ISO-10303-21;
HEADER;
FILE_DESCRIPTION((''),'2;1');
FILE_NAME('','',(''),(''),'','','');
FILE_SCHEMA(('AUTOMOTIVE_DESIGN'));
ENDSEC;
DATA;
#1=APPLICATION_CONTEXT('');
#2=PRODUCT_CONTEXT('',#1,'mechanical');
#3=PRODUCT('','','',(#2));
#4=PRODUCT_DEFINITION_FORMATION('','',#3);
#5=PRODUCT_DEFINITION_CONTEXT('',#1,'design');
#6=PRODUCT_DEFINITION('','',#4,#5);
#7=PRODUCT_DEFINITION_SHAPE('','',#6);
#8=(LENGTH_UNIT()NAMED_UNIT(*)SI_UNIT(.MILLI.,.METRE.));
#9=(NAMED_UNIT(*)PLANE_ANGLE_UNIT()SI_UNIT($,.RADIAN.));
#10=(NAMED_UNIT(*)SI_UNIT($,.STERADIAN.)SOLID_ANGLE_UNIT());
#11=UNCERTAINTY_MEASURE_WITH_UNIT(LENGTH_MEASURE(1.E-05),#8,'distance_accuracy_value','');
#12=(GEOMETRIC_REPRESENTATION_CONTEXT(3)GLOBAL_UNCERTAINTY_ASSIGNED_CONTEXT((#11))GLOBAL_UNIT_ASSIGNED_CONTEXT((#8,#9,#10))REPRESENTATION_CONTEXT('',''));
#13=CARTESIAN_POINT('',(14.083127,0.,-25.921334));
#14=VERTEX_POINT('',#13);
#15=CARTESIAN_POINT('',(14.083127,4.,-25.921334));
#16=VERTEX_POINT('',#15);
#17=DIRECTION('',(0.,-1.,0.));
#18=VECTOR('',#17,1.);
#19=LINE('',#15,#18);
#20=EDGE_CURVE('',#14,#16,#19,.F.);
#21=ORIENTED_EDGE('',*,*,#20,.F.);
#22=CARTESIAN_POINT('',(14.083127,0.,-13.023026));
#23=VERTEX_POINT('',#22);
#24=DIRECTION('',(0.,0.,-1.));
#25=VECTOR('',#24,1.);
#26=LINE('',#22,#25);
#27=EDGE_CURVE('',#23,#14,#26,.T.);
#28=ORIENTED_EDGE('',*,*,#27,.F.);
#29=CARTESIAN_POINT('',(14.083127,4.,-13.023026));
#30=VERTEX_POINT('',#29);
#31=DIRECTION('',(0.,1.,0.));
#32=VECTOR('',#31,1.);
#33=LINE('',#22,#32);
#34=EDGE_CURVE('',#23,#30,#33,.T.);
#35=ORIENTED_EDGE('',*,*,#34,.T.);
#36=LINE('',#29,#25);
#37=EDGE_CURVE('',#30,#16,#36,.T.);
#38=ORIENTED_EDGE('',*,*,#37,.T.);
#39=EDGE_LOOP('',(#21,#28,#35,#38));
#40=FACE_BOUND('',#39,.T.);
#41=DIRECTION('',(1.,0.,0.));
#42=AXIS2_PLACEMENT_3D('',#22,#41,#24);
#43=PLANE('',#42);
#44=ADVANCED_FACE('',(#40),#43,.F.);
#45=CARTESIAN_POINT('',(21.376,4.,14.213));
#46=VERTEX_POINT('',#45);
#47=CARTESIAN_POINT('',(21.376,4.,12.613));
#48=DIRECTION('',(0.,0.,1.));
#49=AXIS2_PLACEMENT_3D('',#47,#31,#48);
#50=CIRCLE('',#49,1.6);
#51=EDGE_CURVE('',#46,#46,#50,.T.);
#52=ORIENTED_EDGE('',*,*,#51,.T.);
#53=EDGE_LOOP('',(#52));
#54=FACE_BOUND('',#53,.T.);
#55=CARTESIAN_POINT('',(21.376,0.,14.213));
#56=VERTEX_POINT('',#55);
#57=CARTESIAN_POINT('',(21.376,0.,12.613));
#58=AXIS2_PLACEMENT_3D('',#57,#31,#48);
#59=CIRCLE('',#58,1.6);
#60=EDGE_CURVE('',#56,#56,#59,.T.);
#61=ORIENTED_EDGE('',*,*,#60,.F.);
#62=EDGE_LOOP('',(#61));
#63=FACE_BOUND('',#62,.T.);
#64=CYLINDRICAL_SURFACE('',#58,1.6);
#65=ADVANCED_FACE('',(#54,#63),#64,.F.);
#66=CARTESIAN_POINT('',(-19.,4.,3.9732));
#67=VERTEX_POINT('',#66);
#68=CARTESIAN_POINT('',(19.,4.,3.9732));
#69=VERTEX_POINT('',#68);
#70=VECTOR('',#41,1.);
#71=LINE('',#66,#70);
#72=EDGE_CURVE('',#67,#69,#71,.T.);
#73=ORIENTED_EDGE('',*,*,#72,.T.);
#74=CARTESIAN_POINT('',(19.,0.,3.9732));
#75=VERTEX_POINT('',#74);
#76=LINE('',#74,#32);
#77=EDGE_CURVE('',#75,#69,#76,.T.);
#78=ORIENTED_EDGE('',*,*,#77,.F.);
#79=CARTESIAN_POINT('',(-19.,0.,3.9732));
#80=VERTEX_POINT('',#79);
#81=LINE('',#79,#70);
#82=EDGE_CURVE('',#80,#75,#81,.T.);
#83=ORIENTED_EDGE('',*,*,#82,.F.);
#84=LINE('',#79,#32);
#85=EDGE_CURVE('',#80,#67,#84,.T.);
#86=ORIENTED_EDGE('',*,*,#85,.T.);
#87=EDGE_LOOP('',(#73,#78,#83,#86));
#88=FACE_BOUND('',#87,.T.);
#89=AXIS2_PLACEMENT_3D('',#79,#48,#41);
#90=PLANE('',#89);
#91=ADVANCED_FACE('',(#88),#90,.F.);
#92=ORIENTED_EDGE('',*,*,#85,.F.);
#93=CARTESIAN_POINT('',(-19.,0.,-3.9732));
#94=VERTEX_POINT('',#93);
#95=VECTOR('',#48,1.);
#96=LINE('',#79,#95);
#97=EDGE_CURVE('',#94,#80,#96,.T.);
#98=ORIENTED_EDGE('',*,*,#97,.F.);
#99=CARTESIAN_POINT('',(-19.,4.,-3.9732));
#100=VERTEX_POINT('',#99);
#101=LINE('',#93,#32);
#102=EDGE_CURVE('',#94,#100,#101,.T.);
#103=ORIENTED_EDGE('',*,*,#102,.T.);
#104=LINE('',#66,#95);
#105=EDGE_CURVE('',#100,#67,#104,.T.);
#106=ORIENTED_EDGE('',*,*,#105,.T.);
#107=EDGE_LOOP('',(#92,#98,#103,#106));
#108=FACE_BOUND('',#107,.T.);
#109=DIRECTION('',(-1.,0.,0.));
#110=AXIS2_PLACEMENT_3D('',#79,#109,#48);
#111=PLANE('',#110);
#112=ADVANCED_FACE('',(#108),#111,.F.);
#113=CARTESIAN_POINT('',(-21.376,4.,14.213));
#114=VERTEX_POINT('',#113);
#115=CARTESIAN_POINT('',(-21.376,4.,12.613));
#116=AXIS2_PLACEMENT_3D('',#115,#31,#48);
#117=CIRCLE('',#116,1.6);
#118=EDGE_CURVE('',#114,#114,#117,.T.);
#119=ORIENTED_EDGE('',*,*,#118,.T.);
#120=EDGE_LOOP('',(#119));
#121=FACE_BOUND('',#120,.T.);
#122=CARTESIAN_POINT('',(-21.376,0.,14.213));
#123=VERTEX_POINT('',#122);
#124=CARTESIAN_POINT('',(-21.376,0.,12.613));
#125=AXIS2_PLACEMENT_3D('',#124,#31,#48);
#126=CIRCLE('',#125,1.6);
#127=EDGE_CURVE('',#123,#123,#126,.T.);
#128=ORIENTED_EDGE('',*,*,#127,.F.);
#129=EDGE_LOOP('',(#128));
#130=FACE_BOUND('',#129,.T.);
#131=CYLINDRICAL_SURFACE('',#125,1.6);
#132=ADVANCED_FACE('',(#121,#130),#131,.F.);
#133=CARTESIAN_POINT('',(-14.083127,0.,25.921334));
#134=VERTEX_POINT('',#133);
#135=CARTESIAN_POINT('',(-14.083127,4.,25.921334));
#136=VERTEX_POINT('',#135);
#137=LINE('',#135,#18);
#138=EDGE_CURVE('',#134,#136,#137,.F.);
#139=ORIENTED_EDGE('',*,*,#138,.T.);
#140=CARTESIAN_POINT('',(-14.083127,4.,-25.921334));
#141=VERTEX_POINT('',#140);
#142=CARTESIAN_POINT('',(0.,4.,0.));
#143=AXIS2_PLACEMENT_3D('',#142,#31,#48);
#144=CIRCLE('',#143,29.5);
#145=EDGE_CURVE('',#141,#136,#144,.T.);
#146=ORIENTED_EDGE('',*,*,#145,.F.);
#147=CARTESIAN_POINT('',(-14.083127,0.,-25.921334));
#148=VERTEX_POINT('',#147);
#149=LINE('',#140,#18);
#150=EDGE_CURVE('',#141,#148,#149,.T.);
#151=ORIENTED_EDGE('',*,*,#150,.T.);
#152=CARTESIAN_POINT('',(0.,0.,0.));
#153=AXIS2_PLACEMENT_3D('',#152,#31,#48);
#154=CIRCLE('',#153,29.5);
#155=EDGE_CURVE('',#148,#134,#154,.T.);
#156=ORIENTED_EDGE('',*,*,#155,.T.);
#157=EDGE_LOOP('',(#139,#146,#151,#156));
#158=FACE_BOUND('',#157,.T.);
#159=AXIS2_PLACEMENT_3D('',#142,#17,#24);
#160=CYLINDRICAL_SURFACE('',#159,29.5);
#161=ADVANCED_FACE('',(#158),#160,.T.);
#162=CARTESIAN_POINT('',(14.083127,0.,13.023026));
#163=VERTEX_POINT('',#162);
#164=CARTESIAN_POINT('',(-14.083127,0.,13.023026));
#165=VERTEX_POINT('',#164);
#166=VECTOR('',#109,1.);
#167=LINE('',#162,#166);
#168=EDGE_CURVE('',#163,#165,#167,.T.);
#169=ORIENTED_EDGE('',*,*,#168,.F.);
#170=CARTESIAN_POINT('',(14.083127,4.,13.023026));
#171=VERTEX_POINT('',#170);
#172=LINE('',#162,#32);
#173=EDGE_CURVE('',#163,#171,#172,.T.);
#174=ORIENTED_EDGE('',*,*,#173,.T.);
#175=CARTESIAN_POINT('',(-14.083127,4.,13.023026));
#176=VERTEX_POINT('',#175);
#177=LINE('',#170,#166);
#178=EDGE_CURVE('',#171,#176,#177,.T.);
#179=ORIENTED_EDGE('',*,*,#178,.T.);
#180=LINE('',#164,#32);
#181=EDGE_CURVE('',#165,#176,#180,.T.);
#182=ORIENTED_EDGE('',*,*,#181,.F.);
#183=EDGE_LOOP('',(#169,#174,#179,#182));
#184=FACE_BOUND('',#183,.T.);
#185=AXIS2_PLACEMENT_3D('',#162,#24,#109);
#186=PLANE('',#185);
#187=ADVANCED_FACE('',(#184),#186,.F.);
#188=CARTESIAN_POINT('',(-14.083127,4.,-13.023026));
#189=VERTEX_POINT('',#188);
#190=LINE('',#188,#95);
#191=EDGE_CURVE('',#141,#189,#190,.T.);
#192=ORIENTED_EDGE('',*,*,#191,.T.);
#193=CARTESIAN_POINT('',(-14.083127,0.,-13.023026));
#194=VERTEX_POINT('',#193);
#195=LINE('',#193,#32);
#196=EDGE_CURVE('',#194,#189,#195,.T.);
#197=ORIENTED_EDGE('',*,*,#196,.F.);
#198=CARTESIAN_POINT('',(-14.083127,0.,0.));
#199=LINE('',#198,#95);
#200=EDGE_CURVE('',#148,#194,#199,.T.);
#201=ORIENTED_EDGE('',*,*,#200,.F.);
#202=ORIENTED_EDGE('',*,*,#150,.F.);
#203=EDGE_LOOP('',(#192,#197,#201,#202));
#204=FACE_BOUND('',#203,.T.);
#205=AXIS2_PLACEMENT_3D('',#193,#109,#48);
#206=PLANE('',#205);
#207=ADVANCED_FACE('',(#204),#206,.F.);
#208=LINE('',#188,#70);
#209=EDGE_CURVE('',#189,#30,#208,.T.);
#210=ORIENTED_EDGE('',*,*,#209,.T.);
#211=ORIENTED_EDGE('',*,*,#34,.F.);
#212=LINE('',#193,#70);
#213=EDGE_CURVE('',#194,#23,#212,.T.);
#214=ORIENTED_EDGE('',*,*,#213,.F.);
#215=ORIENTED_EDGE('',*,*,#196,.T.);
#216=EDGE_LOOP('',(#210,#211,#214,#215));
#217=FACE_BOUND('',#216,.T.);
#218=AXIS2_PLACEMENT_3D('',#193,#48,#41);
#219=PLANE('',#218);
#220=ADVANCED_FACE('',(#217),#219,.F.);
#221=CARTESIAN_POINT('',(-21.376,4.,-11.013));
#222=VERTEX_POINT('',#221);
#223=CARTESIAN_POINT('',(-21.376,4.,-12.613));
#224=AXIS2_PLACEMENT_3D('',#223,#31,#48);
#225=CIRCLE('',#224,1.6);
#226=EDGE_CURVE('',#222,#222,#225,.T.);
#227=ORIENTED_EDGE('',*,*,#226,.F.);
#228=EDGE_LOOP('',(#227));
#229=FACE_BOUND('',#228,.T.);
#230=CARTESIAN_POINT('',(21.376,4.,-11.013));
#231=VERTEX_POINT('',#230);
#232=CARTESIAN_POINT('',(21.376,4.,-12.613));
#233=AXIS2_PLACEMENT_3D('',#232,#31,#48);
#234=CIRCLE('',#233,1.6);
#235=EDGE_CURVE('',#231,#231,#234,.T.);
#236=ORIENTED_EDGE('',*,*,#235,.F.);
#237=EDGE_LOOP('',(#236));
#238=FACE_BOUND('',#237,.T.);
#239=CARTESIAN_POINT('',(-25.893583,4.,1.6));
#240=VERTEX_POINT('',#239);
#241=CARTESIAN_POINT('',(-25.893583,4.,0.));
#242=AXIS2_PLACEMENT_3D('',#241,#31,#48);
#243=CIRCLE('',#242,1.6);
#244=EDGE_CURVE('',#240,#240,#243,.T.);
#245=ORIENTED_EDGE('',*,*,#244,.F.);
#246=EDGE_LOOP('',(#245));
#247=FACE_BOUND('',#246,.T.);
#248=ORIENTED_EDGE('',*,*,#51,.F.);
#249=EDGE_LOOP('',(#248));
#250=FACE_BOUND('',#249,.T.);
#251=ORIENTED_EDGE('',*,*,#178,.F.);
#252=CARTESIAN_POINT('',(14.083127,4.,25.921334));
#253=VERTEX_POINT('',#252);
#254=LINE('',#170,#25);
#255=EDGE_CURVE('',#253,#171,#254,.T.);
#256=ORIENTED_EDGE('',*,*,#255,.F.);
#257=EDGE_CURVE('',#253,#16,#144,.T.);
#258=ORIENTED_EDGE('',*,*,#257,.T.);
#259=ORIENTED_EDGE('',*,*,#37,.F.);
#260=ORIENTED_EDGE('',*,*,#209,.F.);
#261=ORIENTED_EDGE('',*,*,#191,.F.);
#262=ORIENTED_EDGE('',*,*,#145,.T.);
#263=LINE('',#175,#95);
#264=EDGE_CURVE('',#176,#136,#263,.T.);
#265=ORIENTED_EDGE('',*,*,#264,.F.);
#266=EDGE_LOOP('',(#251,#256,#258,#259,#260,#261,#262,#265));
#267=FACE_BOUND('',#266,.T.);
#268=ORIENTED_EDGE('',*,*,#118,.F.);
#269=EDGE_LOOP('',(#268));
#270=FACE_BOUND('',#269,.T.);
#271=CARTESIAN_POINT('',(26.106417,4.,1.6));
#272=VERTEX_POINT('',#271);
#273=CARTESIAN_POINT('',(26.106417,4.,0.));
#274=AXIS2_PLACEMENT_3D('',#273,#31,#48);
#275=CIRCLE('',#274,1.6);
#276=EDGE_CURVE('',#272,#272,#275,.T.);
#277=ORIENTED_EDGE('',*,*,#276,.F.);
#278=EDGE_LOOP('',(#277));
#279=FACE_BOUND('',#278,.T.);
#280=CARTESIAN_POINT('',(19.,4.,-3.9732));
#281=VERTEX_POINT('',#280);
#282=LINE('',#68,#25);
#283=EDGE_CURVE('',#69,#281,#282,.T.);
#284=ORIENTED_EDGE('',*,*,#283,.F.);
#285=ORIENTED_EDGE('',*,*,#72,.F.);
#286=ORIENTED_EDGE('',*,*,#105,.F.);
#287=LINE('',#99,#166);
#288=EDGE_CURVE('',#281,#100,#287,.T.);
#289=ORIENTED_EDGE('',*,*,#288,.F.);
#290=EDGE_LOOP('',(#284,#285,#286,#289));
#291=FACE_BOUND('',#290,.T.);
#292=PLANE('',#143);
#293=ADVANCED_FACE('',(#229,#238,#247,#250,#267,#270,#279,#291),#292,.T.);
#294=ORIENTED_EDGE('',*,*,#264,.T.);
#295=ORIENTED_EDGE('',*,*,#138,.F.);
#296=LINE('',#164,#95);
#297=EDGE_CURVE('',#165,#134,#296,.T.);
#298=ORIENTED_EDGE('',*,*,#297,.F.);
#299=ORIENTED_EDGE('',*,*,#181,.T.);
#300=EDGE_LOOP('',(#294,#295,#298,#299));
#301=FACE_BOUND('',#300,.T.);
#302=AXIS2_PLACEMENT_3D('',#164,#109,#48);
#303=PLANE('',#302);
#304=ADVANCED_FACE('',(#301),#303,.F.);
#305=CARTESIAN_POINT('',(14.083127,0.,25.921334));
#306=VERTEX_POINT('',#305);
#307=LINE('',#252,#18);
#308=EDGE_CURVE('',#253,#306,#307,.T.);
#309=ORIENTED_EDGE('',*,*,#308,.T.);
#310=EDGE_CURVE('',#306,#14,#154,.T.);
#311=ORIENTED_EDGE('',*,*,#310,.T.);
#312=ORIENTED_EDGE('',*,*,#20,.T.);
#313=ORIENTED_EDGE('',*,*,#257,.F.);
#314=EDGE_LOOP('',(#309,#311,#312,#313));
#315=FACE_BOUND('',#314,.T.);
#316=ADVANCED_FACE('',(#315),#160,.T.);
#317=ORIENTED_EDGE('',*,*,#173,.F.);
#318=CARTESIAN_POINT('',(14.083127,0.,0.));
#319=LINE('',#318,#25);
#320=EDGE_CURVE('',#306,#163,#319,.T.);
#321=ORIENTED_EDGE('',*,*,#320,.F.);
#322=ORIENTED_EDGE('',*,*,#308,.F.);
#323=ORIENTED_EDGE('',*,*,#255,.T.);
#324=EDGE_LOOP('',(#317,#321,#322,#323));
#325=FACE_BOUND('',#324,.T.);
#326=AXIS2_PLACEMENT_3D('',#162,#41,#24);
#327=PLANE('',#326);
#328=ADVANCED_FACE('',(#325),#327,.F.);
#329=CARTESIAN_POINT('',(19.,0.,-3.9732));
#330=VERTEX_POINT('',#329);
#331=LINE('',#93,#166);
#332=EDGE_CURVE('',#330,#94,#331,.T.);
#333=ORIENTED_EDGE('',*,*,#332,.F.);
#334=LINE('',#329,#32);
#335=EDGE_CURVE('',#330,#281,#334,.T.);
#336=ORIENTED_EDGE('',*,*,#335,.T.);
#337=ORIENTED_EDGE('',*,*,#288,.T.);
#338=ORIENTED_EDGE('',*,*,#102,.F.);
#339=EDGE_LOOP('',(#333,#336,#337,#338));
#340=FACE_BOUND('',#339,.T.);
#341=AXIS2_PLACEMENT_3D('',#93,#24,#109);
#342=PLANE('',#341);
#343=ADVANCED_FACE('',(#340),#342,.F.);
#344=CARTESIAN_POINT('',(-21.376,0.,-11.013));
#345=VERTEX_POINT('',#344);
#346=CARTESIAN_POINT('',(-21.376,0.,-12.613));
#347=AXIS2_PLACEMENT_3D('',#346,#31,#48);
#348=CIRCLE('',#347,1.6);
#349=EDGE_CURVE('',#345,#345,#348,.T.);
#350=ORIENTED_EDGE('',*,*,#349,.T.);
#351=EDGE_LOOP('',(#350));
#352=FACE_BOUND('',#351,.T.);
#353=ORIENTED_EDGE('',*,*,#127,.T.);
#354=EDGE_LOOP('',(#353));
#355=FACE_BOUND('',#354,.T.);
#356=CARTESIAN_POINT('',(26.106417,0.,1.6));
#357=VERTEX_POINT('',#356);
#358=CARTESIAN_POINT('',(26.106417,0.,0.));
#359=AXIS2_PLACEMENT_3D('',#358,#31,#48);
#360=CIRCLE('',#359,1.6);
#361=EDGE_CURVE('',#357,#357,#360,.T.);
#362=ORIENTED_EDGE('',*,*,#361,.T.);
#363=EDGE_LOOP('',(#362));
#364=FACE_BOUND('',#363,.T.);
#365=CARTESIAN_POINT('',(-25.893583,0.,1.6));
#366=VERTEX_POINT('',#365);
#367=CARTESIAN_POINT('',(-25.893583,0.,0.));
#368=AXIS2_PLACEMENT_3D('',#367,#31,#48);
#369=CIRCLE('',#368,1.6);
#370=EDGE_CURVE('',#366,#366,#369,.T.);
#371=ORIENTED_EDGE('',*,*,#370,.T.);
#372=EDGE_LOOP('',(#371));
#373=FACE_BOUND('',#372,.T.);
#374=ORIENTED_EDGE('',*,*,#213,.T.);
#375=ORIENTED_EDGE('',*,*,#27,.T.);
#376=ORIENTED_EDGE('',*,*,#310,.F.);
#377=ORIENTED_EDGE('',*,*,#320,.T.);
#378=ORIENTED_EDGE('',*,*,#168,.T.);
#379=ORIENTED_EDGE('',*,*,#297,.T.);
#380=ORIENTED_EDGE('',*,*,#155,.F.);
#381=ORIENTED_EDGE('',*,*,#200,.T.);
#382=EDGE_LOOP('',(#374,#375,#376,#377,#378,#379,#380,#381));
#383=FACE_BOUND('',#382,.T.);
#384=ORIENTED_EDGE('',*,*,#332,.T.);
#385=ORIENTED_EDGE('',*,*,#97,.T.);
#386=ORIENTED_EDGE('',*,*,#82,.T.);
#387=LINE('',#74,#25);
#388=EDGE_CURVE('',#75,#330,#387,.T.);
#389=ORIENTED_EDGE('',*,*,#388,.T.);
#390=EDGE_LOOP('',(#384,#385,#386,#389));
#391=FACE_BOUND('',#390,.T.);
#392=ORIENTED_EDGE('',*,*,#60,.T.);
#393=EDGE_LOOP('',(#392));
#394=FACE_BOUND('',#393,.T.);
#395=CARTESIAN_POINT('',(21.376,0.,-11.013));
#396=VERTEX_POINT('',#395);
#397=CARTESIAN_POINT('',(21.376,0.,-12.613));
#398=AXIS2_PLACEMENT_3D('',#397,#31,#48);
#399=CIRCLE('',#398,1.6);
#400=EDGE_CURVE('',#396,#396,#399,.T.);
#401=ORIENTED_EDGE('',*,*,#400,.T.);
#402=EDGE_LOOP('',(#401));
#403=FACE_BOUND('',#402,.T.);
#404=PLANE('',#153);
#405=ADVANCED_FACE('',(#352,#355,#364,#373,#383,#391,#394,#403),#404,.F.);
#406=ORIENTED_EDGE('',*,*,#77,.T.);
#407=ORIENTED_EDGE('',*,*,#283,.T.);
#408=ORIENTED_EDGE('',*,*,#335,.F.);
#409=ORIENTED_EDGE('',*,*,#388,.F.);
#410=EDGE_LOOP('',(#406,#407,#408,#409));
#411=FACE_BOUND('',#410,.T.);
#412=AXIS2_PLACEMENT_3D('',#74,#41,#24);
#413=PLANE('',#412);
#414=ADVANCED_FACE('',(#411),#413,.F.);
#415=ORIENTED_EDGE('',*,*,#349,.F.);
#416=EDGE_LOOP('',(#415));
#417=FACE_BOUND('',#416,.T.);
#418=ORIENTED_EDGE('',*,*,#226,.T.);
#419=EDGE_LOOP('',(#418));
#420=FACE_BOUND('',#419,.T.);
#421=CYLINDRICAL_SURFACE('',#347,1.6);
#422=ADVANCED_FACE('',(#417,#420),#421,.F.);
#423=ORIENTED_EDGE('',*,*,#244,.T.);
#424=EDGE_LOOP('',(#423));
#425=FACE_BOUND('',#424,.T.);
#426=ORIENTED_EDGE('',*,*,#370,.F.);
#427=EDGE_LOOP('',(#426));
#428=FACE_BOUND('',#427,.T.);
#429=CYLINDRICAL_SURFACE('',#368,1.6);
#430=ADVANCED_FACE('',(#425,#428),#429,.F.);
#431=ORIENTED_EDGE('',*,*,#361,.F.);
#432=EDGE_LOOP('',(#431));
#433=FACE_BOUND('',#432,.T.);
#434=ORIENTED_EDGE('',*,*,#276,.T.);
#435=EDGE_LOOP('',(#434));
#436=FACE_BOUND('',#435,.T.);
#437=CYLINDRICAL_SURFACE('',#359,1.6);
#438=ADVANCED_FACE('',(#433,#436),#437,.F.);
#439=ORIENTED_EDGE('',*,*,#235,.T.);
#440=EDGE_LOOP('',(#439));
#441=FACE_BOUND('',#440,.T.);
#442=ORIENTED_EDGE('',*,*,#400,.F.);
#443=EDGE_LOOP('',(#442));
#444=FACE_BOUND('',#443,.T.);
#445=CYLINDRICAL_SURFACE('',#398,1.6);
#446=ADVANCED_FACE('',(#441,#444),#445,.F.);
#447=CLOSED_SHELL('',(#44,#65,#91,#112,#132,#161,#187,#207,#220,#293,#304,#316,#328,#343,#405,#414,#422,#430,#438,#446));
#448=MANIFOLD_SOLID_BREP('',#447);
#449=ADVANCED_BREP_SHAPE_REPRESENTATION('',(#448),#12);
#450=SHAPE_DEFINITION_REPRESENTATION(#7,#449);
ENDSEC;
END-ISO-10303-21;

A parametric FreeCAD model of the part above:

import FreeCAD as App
import Part
import Sketcher
from FreeCAD import Vector


def add_polygon(sketch, points):
    """Adds a closed chain of lines whose ends are joined by coincident constraints."""
    first, n = sketch.GeometryCount, len(points)
    for a, b in zip(points, points[1:] + points[:1]):
        sketch.addGeometry(Part.LineSegment(App.Vector(*a, 0), App.Vector(*b, 0)), False)
    for i in range(n):
        sketch.addConstraint(Sketcher.Constraint("Coincident", first + i, 2, first + (i + 1) % n, 1))

doc = App.newDocument("Part")
body = doc.addObject("PartDesign::Body", "Body")

# Sketch on XZ plane
sketch1 = body.newObject("Sketcher::SketchObject", "Sketch")
sketch1.AttachmentSupport = (doc.getObject("XZ_Plane"), [""])
sketch1.MapMode = "FlatFace"
sketch1.addGeometry(Part.Circle(Vector(0, 0, 0), Vector(0, 0, 1), 30), False)
sketch1.addConstraint(Sketcher.Constraint("Coincident", 0, 3, -1, 1))
sketch1.addConstraint(Sketcher.Constraint("Diameter", 0, 59.0))
pad1 = body.newObject("PartDesign::Pad", "Pad")
pad1.Profile = sketch1
pad1.Length = 4
pad1.Reversed = True

# Sketch on XZ plane
sketch2 = body.newObject("Sketcher::SketchObject", "Sketch001")
sketch2.AttachmentSupport = (doc.getObject("XZ_Plane"), [""])
sketch2.MapMode = "FlatFace"
sketch2.AttachmentOffset = App.Placement(Vector(0, 0, -4), App.Rotation())
add_polygon(sketch2, [(-14, -46), (-14, -13), (14, -13), (14, -46)])  # lines 0-3
add_polygon(sketch2, [(-14, 13), (-14, 46), (14, 46), (14, 13)])  # lines 4-7
sketch2.addConstraint(Sketcher.Constraint("Vertical", 0))
sketch2.addConstraint(Sketcher.Constraint("Horizontal", 1))
sketch2.addConstraint(Sketcher.Constraint("Vertical", 2))
sketch2.addConstraint(Sketcher.Constraint("Horizontal", 3))
sketch2.addConstraint(Sketcher.Constraint("Vertical", 4))
sketch2.addConstraint(Sketcher.Constraint("Horizontal", 5))
sketch2.addConstraint(Sketcher.Constraint("Vertical", 6))
sketch2.addConstraint(Sketcher.Constraint("Horizontal", 7))
sketch2.addConstraint(Sketcher.Constraint("Symmetric", 2, 2, 4, 2, -1, 1))
sketch2.addConstraint(Sketcher.Constraint("Symmetric", 0, 2, 6, 2, -1, 1))
sketch2.addConstraint(Sketcher.Constraint("Vertical", 3, 2, 4, 2))
sketch2.addConstraint(Sketcher.Constraint("DistanceY", 0, 2, 4, 2, 59.0))
sketch2.addConstraint(Sketcher.Constraint("DistanceY", 0, 1, 0, 2, 32.953949))
sketch2.addConstraint(Sketcher.Constraint("DistanceX", 1, 1, 1, 2, 28.166253))
pocket1 = body.newObject("PartDesign::Pocket", "Pocket")
pocket1.Profile = sketch2
pocket1.Type = "ThroughAll"
pocket1.Reversed = True

# Sketch on XZ plane
sketch3 = body.newObject("Sketcher::SketchObject", "Sketch002")
sketch3.AttachmentSupport = (doc.getObject("XZ_Plane"), [""])
sketch3.MapMode = "FlatFace"
sketch3.AttachmentOffset = App.Placement(Vector(0, 0, -4), App.Rotation())
add_polygon(sketch3, [(-19, -4), (-19, 4), (19, 4), (19, -4)])  # lines 0-3
sketch3.addConstraint(Sketcher.Constraint("Vertical", 0))
sketch3.addConstraint(Sketcher.Constraint("Horizontal", 1))
sketch3.addConstraint(Sketcher.Constraint("Vertical", 2))
sketch3.addConstraint(Sketcher.Constraint("Horizontal", 3))
sketch3.addConstraint(Sketcher.Constraint("Symmetric", 0, 2, 2, 2, -1, 1))
sketch3.addConstraint(Sketcher.Constraint("DistanceX", 1, 1, 1, 2, 38.0))
sketch3.addConstraint(Sketcher.Constraint("DistanceY", 0, 1, 0, 2, 7.946399))
pocket2 = body.newObject("PartDesign::Pocket", "Pocket001")
pocket2.Profile = sketch3
pocket2.Type = "ThroughAll"
pocket2.Reversed = True

# Sketch on XZ plane
sketch4 = body.newObject("Sketcher::SketchObject", "Sketch003")
sketch4.AttachmentSupport = (doc.getObject("XZ_Plane"), [""])
sketch4.MapMode = "FlatFace"
sketch4.AttachmentOffset = App.Placement(Vector(0, 0, -4), App.Rotation())
sketch4.addGeometry(Part.Circle(Vector(-25.9, 0, 0), Vector(0, 0, 1), 1.6), False)
sketch4.addGeometry(Part.Circle(Vector(26.1, 0, 0), Vector(0, 0, 1), 1.6), False)
sketch4.addGeometry(Part.Circle(Vector(-21.4, -12.6, 0), Vector(0, 0, 1), 1.6), False)
sketch4.addGeometry(Part.Circle(Vector(21.4, -12.6, 0), Vector(0, 0, 1), 1.6), False)
sketch4.addGeometry(Part.Circle(Vector(-21.4, 12.6, 0), Vector(0, 0, 1), 1.6), False)
sketch4.addGeometry(Part.Circle(Vector(21.4, 12.6, 0), Vector(0, 0, 1), 1.6), False)
sketch4.addConstraint(Sketcher.Constraint("Equal", 0, 1))
sketch4.addConstraint(Sketcher.Constraint("Equal", 1, 2))
sketch4.addConstraint(Sketcher.Constraint("Equal", 2, 3))
sketch4.addConstraint(Sketcher.Constraint("Equal", 3, 4))
sketch4.addConstraint(Sketcher.Constraint("Equal", 4, 5))
sketch4.addConstraint(Sketcher.Constraint("Symmetric", 3, 3, 4, 3, -1, 1))
sketch4.addConstraint(Sketcher.Constraint("Symmetric", 2, 3, 5, 3, -1, 1))
sketch4.addConstraint(Sketcher.Constraint("Symmetric", 2, 3, 3, 3, -2))
sketch4.addConstraint(Sketcher.Constraint("PointOnObject", 0, 3, -1))
sketch4.addConstraint(Sketcher.Constraint("PointOnObject", 1, 3, -1))
sketch4.addConstraint(Sketcher.Constraint("Diameter", 0, 3.2))
sketch4.addConstraint(Sketcher.Constraint("DistanceX", 0, 3, 1, 3, 52.0))
sketch4.addConstraint(Sketcher.Constraint("DistanceX", 2, 3, -1, 1, 21.376))
sketch4.addConstraint(Sketcher.Constraint("DistanceY", 2, 3, -1, 1, 12.613))
sketch4.addConstraint(Sketcher.Constraint("DistanceX", 0, 3, -1, 1, 25.893583))
pocket3 = body.newObject("PartDesign::Pocket", "Pocket002")
pocket3.Profile = sketch4
pocket3.Type = "ThroughAll"
pocket3.Reversed = True

doc.recompute()
